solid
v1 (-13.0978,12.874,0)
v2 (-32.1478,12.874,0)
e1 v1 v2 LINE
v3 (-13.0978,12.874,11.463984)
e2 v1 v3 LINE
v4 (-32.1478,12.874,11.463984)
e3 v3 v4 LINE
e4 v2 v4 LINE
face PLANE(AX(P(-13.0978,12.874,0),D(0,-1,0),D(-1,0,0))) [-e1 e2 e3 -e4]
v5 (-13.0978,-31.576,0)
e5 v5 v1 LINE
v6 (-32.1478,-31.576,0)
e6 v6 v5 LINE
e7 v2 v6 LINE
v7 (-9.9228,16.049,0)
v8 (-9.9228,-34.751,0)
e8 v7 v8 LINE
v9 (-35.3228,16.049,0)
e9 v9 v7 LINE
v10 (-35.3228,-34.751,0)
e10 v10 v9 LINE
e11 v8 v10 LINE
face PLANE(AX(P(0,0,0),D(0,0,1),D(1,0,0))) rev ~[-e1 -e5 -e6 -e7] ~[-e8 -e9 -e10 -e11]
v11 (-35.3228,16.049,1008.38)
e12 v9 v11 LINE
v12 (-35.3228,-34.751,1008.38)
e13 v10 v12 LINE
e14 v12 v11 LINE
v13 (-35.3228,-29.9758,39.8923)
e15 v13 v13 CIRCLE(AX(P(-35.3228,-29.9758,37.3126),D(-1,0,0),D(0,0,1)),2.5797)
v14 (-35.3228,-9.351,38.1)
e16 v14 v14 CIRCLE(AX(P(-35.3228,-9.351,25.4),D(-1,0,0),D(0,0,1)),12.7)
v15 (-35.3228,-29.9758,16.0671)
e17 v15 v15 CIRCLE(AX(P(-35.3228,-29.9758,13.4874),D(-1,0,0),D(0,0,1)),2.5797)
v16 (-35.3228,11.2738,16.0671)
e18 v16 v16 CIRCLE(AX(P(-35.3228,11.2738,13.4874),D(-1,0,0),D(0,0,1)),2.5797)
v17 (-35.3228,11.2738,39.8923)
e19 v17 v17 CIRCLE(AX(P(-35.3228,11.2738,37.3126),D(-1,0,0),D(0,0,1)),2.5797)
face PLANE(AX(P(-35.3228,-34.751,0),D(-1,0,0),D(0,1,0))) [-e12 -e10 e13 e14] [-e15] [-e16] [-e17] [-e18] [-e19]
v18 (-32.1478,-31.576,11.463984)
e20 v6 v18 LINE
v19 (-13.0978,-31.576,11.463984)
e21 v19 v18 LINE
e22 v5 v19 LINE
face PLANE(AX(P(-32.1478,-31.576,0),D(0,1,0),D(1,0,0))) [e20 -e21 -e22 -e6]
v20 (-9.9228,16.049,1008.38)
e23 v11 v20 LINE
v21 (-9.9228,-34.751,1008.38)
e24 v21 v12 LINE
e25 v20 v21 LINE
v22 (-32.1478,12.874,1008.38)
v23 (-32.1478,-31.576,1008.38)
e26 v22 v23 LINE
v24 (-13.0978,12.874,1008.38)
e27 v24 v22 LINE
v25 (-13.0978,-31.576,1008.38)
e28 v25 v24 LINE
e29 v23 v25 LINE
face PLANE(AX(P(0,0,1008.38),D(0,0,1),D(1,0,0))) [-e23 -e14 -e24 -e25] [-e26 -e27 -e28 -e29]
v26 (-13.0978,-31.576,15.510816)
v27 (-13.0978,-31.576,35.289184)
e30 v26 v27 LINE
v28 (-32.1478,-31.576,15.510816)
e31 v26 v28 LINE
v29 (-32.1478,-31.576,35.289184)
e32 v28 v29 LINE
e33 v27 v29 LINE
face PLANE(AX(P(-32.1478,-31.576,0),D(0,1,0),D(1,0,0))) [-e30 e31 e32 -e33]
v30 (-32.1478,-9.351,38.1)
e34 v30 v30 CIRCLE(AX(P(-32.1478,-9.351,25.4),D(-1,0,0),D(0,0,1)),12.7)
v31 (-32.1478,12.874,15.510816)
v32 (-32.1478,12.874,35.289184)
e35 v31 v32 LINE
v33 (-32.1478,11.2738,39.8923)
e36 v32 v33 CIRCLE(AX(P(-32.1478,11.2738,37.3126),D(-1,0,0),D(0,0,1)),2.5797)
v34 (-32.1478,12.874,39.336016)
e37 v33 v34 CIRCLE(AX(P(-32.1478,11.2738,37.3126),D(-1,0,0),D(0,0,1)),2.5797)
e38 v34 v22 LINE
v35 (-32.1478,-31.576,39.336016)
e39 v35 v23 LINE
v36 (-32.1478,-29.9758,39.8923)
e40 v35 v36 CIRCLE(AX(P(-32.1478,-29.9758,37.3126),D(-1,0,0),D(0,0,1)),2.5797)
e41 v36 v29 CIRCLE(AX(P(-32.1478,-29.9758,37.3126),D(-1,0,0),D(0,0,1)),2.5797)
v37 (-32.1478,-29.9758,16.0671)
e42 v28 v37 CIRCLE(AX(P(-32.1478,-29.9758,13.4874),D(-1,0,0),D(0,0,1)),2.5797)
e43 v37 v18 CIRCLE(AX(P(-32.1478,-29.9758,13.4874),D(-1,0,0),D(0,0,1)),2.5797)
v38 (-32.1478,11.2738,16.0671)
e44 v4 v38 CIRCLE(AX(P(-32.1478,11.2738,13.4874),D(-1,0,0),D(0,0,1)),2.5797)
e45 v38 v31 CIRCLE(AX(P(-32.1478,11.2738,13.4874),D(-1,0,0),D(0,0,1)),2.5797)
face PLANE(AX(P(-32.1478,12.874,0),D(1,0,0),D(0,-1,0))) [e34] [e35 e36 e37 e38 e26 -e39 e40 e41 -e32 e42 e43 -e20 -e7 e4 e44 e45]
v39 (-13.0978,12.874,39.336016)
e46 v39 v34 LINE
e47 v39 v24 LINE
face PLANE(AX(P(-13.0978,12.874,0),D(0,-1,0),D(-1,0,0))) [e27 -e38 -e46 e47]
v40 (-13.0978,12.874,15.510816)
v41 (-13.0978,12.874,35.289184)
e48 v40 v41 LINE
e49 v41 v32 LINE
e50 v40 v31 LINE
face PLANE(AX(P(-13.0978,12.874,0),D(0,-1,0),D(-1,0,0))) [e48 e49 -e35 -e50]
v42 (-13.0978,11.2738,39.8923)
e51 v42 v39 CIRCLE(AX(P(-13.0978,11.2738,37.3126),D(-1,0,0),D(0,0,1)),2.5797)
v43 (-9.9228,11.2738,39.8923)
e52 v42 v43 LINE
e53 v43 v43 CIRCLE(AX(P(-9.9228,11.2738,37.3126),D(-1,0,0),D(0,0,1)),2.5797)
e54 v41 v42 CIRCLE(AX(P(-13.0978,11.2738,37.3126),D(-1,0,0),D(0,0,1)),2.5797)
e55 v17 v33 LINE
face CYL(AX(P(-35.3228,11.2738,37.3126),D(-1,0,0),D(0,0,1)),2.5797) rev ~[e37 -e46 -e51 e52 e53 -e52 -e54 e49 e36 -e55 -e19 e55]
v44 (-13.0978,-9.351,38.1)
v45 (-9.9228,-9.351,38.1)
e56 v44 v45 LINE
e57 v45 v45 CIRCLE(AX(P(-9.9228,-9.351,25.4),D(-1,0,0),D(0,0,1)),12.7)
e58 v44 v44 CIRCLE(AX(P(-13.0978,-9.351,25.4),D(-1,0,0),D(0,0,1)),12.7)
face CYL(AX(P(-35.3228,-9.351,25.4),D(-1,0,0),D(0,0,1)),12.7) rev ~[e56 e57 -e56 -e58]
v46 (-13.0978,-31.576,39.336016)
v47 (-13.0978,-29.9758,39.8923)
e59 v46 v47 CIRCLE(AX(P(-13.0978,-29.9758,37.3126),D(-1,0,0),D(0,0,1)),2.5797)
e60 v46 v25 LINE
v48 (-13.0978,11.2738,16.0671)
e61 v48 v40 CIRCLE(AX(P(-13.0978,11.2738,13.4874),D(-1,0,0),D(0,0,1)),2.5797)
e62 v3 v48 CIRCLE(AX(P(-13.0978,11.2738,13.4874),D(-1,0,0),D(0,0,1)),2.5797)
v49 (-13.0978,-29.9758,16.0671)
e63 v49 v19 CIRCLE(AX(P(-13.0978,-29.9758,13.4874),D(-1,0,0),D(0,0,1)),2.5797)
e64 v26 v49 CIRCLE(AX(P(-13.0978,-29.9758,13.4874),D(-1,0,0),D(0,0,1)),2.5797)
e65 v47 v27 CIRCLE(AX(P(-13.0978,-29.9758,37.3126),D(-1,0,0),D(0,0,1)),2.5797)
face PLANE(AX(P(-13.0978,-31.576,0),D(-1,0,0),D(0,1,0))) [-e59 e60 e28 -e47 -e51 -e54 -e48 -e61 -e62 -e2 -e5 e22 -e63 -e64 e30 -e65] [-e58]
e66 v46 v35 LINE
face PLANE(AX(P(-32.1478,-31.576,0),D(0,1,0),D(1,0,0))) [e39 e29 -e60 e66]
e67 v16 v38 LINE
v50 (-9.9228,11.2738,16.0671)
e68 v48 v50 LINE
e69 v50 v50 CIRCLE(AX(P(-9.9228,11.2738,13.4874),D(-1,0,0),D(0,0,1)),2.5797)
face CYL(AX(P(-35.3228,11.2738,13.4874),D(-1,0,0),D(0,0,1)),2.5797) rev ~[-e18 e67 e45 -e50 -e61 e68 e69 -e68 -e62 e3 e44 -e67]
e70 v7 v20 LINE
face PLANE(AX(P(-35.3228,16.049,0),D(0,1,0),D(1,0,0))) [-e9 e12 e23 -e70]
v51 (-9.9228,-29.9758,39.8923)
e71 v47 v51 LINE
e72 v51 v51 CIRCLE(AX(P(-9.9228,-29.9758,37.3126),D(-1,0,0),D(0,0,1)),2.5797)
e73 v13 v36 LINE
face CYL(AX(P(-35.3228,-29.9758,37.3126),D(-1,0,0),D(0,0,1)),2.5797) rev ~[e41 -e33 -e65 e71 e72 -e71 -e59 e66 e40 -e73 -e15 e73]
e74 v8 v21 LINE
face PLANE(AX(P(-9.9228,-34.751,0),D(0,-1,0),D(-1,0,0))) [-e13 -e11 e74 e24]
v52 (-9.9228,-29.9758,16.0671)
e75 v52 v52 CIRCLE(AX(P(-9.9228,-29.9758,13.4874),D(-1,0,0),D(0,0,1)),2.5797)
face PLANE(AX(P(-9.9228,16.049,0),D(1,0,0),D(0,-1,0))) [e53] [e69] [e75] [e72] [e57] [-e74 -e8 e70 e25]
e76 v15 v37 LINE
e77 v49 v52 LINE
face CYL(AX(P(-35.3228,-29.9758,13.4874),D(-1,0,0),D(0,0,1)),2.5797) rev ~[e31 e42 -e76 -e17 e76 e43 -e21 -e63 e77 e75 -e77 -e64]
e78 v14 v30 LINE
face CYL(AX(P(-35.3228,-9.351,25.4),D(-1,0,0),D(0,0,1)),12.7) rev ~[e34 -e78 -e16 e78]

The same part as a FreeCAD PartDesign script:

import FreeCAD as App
import Part
import Sketcher

V = App.Vector
Q = App.Units.Quantity

doc = App.newDocument("Part")
body = doc.addObject("PartDesign::Body", "Body")

# Sketch on XY plane
sketch1 = doc.addObject("Sketcher::SketchObject", "Sketch")
body.addObject(sketch1)
sketch1.AttachmentSupport = (doc.XY_Plane, [""])
sketch1.MapMode = "FlatFace"
sketch1.addGeometry([
    Part.LineSegment(V(-10, 16, 0), V(-35, 16, 0)),  # 0
    Part.LineSegment(V(-35, 16, 0), V(-35, -35, 0)),  # 1
    Part.LineSegment(V(-35, -35, 0), V(-10, -35, 0)),  # 2
    Part.LineSegment(V(-10, -35, 0), V(-10, 16, 0)),  # 3
    Part.LineSegment(V(-32, 13, 0), V(-13, 13, 0)),  # 4
    Part.LineSegment(V(-13, 13, 0), V(-13, -32, 0)),  # 5
    Part.LineSegment(V(-13, -32, 0), V(-32, -32, 0)),  # 6
    Part.LineSegment(V(-32, -32, 0), V(-32, 13, 0)),  # 7
], False)
sketch1.addConstraint([
    Sketcher.Constraint("Coincident", 0, 2, 1, 1),
    Sketcher.Constraint("Coincident", 1, 2, 2, 1),
    Sketcher.Constraint("Coincident", 2, 2, 3, 1),
    Sketcher.Constraint("Coincident", 3, 2, 0, 1),
    Sketcher.Constraint("Coincident", 4, 2, 5, 1),
    Sketcher.Constraint("Coincident", 5, 2, 6, 1),
    Sketcher.Constraint("Coincident", 6, 2, 7, 1),
    Sketcher.Constraint("Coincident", 7, 2, 4, 1),
    Sketcher.Constraint("Horizontal", 0),
    Sketcher.Constraint("Vertical", 1),
    Sketcher.Constraint("Horizontal", 2),
    Sketcher.Constraint("Vertical", 3),
    Sketcher.Constraint("Horizontal", 4),
    Sketcher.Constraint("Vertical", 5),
    Sketcher.Constraint("Horizontal", 6),
    Sketcher.Constraint("Vertical", 7),
    Sketcher.Constraint("DistanceX", 0, 2, 0, 1, Q("1 in")),
    Sketcher.Constraint("DistanceY", 1, 2, 1, 1, Q("2 in")),
    Sketcher.Constraint("DistanceX", 4, 2, 3, 2, Q("0.125 in")),
    Sketcher.Constraint("DistanceY", 4, 2, 3, 2, Q("0.125 in")),
    Sketcher.Constraint("DistanceY", 2, 2, 5, 2, Q("0.125 in")),
    Sketcher.Constraint("DistanceX", 1, 2, 6, 2, Q("0.125 in")),
    Sketcher.Constraint("DistanceX", 0, 2, -1, 1, 35.3228),
    Sketcher.Constraint("DistanceY", -1, 1, 0, 2, 16.049),
])
pad1 = doc.addObject("PartDesign::Pad", "Pad")
body.addObject(pad1)
pad1.Profile = sketch1
pad1.Length = Q("39.7 in")

# Sketch on YZ plane
sketch2 = doc.addObject("Sketcher::SketchObject", "Sketch001")
body.addObject(sketch2)
sketch2.AttachmentSupport = (doc.YZ_Plane, [""])
sketch2.MapMode = "FlatFace"
sketch2.AttachmentOffset = App.Placement(V(0, 0, -35.3228), App.Rotation())
sketch2.addGeometry(Part.Circle(V(-9, 25, 0), V(0, 0, 1), 13), False)
sketch2.addConstraint([
    Sketcher.Constraint("Diameter", 0, Q("1 in")),
    Sketcher.Constraint("DistanceY", -1, 1, 0, 3, Q("1 in")),
    Sketcher.Constraint("DistanceX", 0, 3, -1, 1, 9.351),
])
pocket1 = doc.addObject("PartDesign::Pocket", "Pocket")
body.addObject(pocket1)
pocket1.Profile = sketch2
pocket1.Length = Q("10 in")
pocket1.Reversed = True

# Sketch on YZ plane
sketch3 = doc.addObject("Sketcher::SketchObject", "Sketch002")
body.addObject(sketch3)
sketch3.AttachmentSupport = (doc.YZ_Plane, [""])
sketch3.MapMode = "FlatFace"
sketch3.AttachmentOffset = App.Placement(V(0, 0, -35.3228), App.Rotation())
sketch3.addGeometry([
    Part.Circle(V(-30, 13.5, 0), V(0, 0, 1), 2.6),
    Part.Circle(V(-30, 37.3, 0), V(0, 0, 1), 2.6),
    Part.Circle(V(11.3, 37.3, 0), V(0, 0, 1), 2.6),
    Part.Circle(V(11.3, 13.5, 0), V(0, 0, 1), 2.6),
], False)
sketch3.addConstraint([
    Sketcher.Constraint("Equal", 0, 1),
    Sketcher.Constraint("Equal", 1, 2),
    Sketcher.Constraint("Equal", 2, 3),
    Sketcher.Constraint("Horizontal", 1, 3, 2, 3),
    Sketcher.Constraint("Horizontal", 0, 3, 3, 3),
    Sketcher.Constraint("Vertical", 0, 3, 1, 3),
    Sketcher.Constraint("Vertical", 2, 3, 3, 3),
    Sketcher.Constraint("Diameter", 0, Q("0.203126 in")),
    Sketcher.Constraint("DistanceY", -1, 1, 0, 3, Q("0.531 in")),
    Sketcher.Constraint("DistanceY", 0, 3, 1, 3, Q("0.938 in")),
    Sketcher.Constraint("DistanceX", 1, 3, 2, 3, Q("1.624 in")),
    Sketcher.Constraint("DistanceX", 0, 3, -1, 1, 29.9758),
])
pocket2 = doc.addObject("PartDesign::Pocket", "Pocket001")
body.addObject(pocket2)
pocket2.Profile = sketch3
pocket2.Length = Q("1 in")
pocket2.Reversed = True

doc.recompute()
